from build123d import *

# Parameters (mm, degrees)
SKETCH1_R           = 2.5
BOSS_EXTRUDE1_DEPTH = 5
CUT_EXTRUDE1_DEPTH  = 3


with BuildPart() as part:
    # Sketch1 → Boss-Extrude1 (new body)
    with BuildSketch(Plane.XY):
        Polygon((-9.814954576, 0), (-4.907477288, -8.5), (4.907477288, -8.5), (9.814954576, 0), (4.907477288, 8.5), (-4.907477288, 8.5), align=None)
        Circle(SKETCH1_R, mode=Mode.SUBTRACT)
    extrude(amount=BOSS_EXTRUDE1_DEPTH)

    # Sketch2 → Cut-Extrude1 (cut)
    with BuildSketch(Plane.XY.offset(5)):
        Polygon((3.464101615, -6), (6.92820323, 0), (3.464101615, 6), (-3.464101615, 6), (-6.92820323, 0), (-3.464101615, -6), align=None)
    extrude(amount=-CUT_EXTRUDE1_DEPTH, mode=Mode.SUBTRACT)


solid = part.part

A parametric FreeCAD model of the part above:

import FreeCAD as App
import Part
import Sketcher

V = App.Vector
Q = App.Units.Quantity

doc = App.newDocument("Part")
params = doc.addObject("Spreadsheet::Sheet", "Params")
for row, (alias, value) in enumerate([
    ("sketch1_diameter", "5 mm"),
    ("pad1_length", "5 mm"),
    ("pocket1_length", "3 mm"),
], start=1):
    params.set(f"A{row}", alias)
    params.set(f"B{row}", "=" + value)
    params.setAlias(f"B{row}", alias)

body = doc.addObject("PartDesign::Body", "Body")

# Sketch on XY plane
sketch1 = doc.addObject("Sketcher::SketchObject", "Sketch")
body.addObject(sketch1)
sketch1.AttachmentSupport = (doc.XY_Plane, [""])
sketch1.MapMode = "FlatFace"
sketch1.addGeometry(Part.LineSegment(V(-9.8, 0, 0), V(-4.9, -8.5, 0)), False)
sketch1.addGeometry(Part.LineSegment(V(-4.9, -8.5, 0), V(4.9, -8.5, 0)), False)
sketch1.addGeometry(Part.LineSegment(V(4.9, -8.5, 0), V(9.8, 0, 0)), False)
sketch1.addGeometry(Part.LineSegment(V(9.8, 0, 0), V(4.9, 8.5, 0)), False)
sketch1.addGeometry(Part.LineSegment(V(4.9, 8.5, 0), V(-4.9, 8.5, 0)), False)
sketch1.addGeometry(Part.LineSegment(V(-4.9, 8.5, 0), V(-9.8, 0, 0)), False)
sketch1.addGeometry(Part.Circle(V(0, 0, 0), V(0, 0, 1), 2.5), False)
sketch1.addConstraint(Sketcher.Constraint("Coincident", 0, 2, 1, 1))
sketch1.addConstraint(Sketcher.Constraint("Coincident", 1, 2, 2, 1))
sketch1.addConstraint(Sketcher.Constraint("Coincident", 2, 2, 3, 1))
sketch1.addConstraint(Sketcher.Constraint("Coincident", 3, 2, 4, 1))
sketch1.addConstraint(Sketcher.Constraint("Coincident", 4, 2, 5, 1))
sketch1.addConstraint(Sketcher.Constraint("Coincident", 5, 2, 0, 1))
sketch1.addConstraint(Sketcher.Constraint("Horizontal", 1))
sketch1.addConstraint(Sketcher.Constraint("Horizontal", 4))
sketch1.addConstraint(Sketcher.Constraint("Coincident", 6, 3, -1, 1))
sketch1.addConstraint(Sketcher.Constraint("Symmetric", 0, 2, 3, 2, -1, 1))
sketch1.addConstraint(Sketcher.Constraint("Symmetric", 2, 2, 5, 2, -1, 1))
sketch1.addConstraint(Sketcher.Constraint("PointOnObject", 2, 2, -1))
sketch1.addConstraint(Sketcher.Constraint("Parallel", 2, 5))
sketch1.addConstraint(Sketcher.Constraint("Vertical", 1, 2, 3, 2))
sketch1.addConstraint(Sketcher.Constraint("Diameter", 6, Q("5 mm")))
sketch1.addConstraint(Sketcher.Constraint("Angle", 0, Q("-60 deg")))
sketch1.addConstraint(Sketcher.Constraint("DistanceY", 1, 2, 3, 2, Q("17 mm")))
sketch1.addConstraint(Sketcher.Constraint("DistanceX", 1, 1, 1, 2, Q("9.814955 mm")))
sketch1.setExpression("Constraints[14]", "Params.sketch1_diameter")
pad1 = doc.addObject("PartDesign::Pad", "Pad")
body.addObject(pad1)
pad1.Profile = sketch1
pad1.setExpression("Length", "Params.pad1_length")

# Sketch on XY plane
sketch2 = doc.addObject("Sketcher::SketchObject", "Sketch001")
body.addObject(sketch2)
sketch2.AttachmentSupport = (doc.XY_Plane, [""])
sketch2.MapMode = "FlatFace"
sketch2.AttachmentOffset = App.Placement(V(0, 0, 5), App.Rotation())
sketch2.addGeometry(Part.LineSegment(V(3, -6, 0), V(7, 0, 0)), False)
sketch2.addGeometry(Part.LineSegment(V(7, 0, 0), V(3, 6, 0)), False)
sketch2.addGeometry(Part.LineSegment(V(3, 6, 0), V(-3, 6, 0)), False)
sketch2.addGeometry(Part.LineSegment(V(-3, 6, 0), V(-7, 0, 0)), False)
sketch2.addGeometry(Part.LineSegment(V(-7, 0, 0), V(-3, -6, 0)), False)
sketch2.addGeometry(Part.LineSegment(V(-3, -6, 0), V(3, -6, 0)), False)
sketch2.addConstraint(Sketcher.Constraint("Coincident", 0, 2, 1, 1))
sketch2.addConstraint(Sketcher.Constraint("Coincident", 1, 2, 2, 1))
sketch2.addConstraint(Sketcher.Constraint("Coincident", 2, 2, 3, 1))
sketch2.addConstraint(Sketcher.Constraint("Coincident", 3, 2, 4, 1))
sketch2.addConstraint(Sketcher.Constraint("Coincident", 4, 2, 5, 1))
sketch2.addConstraint(Sketcher.Constraint("Coincident", 5, 2, 0, 1))
sketch2.addConstraint(Sketcher.Constraint("Horizontal", 2))
sketch2.addConstraint(Sketcher.Constraint("Horizontal", 5))
sketch2.addConstraint(Sketcher.Constraint("Symmetric", 0, 2, 3, 2, -1, 1))
sketch2.addConstraint(Sketcher.Constraint("Symmetric", 1, 2, 4, 2, -1, 1))
sketch2.addConstraint(Sketcher.Constraint("PointOnObject", 0, 2, -1))
sketch2.addConstraint(Sketcher.Constraint("Parallel", 0, 3))
sketch2.addConstraint(Sketcher.Constraint("Vertical", 2, 2, 4, 2))
sketch2.addConstraint(Sketcher.Constraint("Angle", 0, Q("60 deg")))
sketch2.addConstraint(Sketcher.Constraint("DistanceY", -1, 1, 1, 2, Q("6 mm")))
sketch2.addConstraint(Sketcher.Constraint("DistanceX", -1, 1, 1, 2, Q("3.464102 mm")))
pocket1 = doc.addObject("PartDesign::Pocket", "Pocket")
body.addObject(pocket1)
pocket1.Profile = sketch2
pocket1.setExpression("Length", "Params.pocket1_length")

doc.recompute()
